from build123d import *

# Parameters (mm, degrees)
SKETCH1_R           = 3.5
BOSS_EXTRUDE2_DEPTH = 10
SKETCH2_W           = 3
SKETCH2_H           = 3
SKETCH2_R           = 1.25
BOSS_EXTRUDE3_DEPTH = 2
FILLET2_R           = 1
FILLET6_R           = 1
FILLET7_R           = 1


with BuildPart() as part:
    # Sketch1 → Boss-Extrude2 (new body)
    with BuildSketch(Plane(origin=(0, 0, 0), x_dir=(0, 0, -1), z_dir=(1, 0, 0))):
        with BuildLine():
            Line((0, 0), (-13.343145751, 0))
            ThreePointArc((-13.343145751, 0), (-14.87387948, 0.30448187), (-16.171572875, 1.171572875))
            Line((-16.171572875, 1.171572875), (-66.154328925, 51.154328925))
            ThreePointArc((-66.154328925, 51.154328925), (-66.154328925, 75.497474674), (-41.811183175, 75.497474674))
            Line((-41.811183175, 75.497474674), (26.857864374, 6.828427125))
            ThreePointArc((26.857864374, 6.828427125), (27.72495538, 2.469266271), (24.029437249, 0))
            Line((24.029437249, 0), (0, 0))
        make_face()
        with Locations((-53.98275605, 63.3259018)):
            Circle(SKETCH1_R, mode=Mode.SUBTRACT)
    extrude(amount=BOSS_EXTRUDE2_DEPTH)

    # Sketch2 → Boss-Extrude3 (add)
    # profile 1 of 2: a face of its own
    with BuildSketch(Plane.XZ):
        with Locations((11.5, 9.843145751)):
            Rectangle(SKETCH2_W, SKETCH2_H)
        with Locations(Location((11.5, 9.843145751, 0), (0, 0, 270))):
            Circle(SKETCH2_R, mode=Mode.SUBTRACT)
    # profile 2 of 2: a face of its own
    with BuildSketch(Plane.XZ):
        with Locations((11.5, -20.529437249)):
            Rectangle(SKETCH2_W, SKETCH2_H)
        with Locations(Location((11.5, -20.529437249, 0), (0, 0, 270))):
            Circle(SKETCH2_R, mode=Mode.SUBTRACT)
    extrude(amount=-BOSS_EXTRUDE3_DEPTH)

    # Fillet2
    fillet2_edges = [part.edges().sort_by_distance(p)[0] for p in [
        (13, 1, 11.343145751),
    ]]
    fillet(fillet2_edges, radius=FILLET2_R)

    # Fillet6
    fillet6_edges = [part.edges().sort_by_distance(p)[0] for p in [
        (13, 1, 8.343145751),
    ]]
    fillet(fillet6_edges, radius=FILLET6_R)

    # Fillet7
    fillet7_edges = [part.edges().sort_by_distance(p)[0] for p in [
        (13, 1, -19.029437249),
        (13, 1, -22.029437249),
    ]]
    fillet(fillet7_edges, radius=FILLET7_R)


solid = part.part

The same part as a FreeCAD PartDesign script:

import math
import FreeCAD as App
import Part
import Sketcher
Q = App.Units.Quantity


def edges_at(feature, points):
    """Names of the edges that pass closest to the given points."""
    edges = feature.Shape.Edges
    near = lambda p: min(range(len(edges)), key=lambda i: edges[i].distToShape(Part.Vertex(*p))[0])
    return sorted({f"Edge{near(p) + 1}" for p in points})

doc = App.newDocument("Part")
params = doc.addObject("Spreadsheet::Sheet", "Params")
for row, (alias, value) in enumerate([
    ("sketch1_diameter", "7 mm"),
    ("sketch1_radius", "4 mm"),
    ("pad1_length", "10 mm"),
    ("sketch2_diameter", "2.5 mm"),
    ("sketch2_width", "3 mm"),
    ("pad2_length", "2 mm"),
    ("fillet_radius", "1 mm"),
    ("fillet2_radius", "1 mm"),
    ("fillet3_radius", "1 mm"),
], start=1):
    params.set(f"A{row}", alias)
    params.set(f"B{row}", "=" + value)
    params.setAlias(f"B{row}", alias)

body = doc.addObject("PartDesign::Body", "Body")

# Sketch on YZ plane
sketch1 = body.newObject("Sketcher::SketchObject", "Sketch")
sketch1.AttachmentSupport = (doc.getObject("YZ_Plane"), [""])
sketch1.MapMode = "FlatFace"
sketch1.addGeometry(Part.ArcOfCircle(Part.Circle(App.Vector(4, 13.3, 0), App.Vector(0, 0, 1), 4), math.radians(135), math.radians(180)), False)
sketch1.addGeometry(Part.LineSegment(App.Vector(0, 13.3, 0), App.Vector(0, -24, 0)), False)
sketch1.addGeometry(Part.ArcOfCircle(Part.Circle(App.Vector(4, -24, 0), App.Vector(0, 0, 1), 4), math.radians(180), math.radians(315)), False)
sketch1.addGeometry(Part.LineSegment(App.Vector(6.8, -26.9, 0), App.Vector(75.5, 41.8, 0)), False)
sketch1.addGeometry(Part.ArcOfCircle(Part.Circle(App.Vector(63.3, 54, 0), App.Vector(0, 0, 1), 17.2), math.radians(-45), math.radians(135)), False)
sketch1.addGeometry(Part.LineSegment(App.Vector(51.2, 66.2, 0), App.Vector(1.2, 16.2, 0)), False)
sketch1.addGeometry(Part.Circle(App.Vector(63.3, 54, 0), App.Vector(0, 0, 1), 3.5), False)
sketch1.addConstraint(Sketcher.Constraint("Tangent", 0, 2, 1, 1))
sketch1.addConstraint(Sketcher.Constraint("Tangent", 1, 2, 2, 1))
sketch1.addConstraint(Sketcher.Constraint("Tangent", 2, 2, 3, 1))
sketch1.addConstraint(Sketcher.Constraint("Tangent", 3, 2, 4, 1))
sketch1.addConstraint(Sketcher.Constraint("Tangent", 4, 2, 5, 1))
sketch1.addConstraint(Sketcher.Constraint("Tangent", 5, 2, 0, 1))
sketch1.addConstraint(Sketcher.Constraint("Vertical", 1))
sketch1.addConstraint(Sketcher.Constraint("Coincident", 6, 3, 4, 3))
sketch1.addConstraint(Sketcher.Constraint("Equal", 0, 2))
sketch1.addConstraint(Sketcher.Constraint("PointOnObject", 0, 2, -2))
sketch1.addConstraint(Sketcher.Constraint("Parallel", 3, 5))
sketch1.addConstraint(Sketcher.Constraint("Diameter", 6, 7.0))
sketch1.addConstraint(Sketcher.Constraint("Radius", 0, 4.0))
sketch1.addConstraint(Sketcher.Constraint("Angle", 3, Q("45 deg")))
sketch1.addConstraint(Sketcher.Constraint("Radius", 4, 17.213203))
sketch1.addConstraint(Sketcher.Constraint("Distance", 3, 97.112698))
sketch1.addConstraint(Sketcher.Constraint("DistanceY", -1, 1, 4, 2, 66.154329))
sketch1.setExpression("Constraints[11]", "Params.sketch1_diameter")
sketch1.setExpression("Constraints[12]", "Params.sketch1_radius")
pad1 = body.newObject("PartDesign::Pad", "Pad")
pad1.Profile = sketch1
pad1.setExpression("Length", "Params.pad1_length")

# Sketch on XZ plane
sketch2 = body.newObject("Sketcher::SketchObject", "Sketch001")
sketch2.AttachmentSupport = (doc.getObject("XZ_Plane"), [""])
sketch2.MapMode = "FlatFace"
sketch2.addGeometry(Part.LineSegment(App.Vector(10, 11.3, 0), App.Vector(10, 8.3, 0)), False)
sketch2.addGeometry(Part.LineSegment(App.Vector(10, 8.3, 0), App.Vector(13, 8.3, 0)), False)
sketch2.addGeometry(Part.LineSegment(App.Vector(13, 8.3, 0), App.Vector(13, 11.3, 0)), False)
sketch2.addGeometry(Part.LineSegment(App.Vector(13, 11.3, 0), App.Vector(10, 11.3, 0)), False)
sketch2.addGeometry(Part.Circle(App.Vector(11.5, 9.8, 0), App.Vector(0, 0, 1), 1.2), False)
sketch2.addGeometry(Part.LineSegment(App.Vector(10, -19, 0), App.Vector(10, -22, 0)), False)
sketch2.addGeometry(Part.LineSegment(App.Vector(10, -22, 0), App.Vector(13, -22, 0)), False)
sketch2.addGeometry(Part.LineSegment(App.Vector(13, -22, 0), App.Vector(13, -19, 0)), False)
sketch2.addGeometry(Part.LineSegment(App.Vector(13, -19, 0), App.Vector(10, -19, 0)), False)
sketch2.addGeometry(Part.Circle(App.Vector(11.5, -20.5, 0), App.Vector(0, 0, 1), 1.2), False)
sketch2.addConstraint(Sketcher.Constraint("Coincident", 0, 2, 1, 1))
sketch2.addConstraint(Sketcher.Constraint("Coincident", 1, 2, 2, 1))
sketch2.addConstraint(Sketcher.Constraint("Coincident", 2, 2, 3, 1))
sketch2.addConstraint(Sketcher.Constraint("Coincident", 3, 2, 0, 1))
sketch2.addConstraint(Sketcher.Constraint("Coincident", 5, 2, 6, 1))
sketch2.addConstraint(Sketcher.Constraint("Coincident", 6, 2, 7, 1))
sketch2.addConstraint(Sketcher.Constraint("Coincident", 7, 2, 8, 1))
sketch2.addConstraint(Sketcher.Constraint("Coincident", 8, 2, 5, 1))
sketch2.addConstraint(Sketcher.Constraint("Vertical", 0))
sketch2.addConstraint(Sketcher.Constraint("Horizontal", 1))
sketch2.addConstraint(Sketcher.Constraint("Vertical", 2))
sketch2.addConstraint(Sketcher.Constraint("Horizontal", 3))
sketch2.addConstraint(Sketcher.Constraint("Vertical", 5))
sketch2.addConstraint(Sketcher.Constraint("Horizontal", 6))
sketch2.addConstraint(Sketcher.Constraint("Vertical", 7))
sketch2.addConstraint(Sketcher.Constraint("Horizontal", 8))
sketch2.addConstraint(Sketcher.Constraint("Equal", 4, 9))
sketch2.addConstraint(Sketcher.Constraint("Vertical", 4, 3, 9, 3))
sketch2.addConstraint(Sketcher.Constraint("Vertical", 3, 2, 5, 2))
sketch2.addConstraint(Sketcher.Constraint("Vertical", 2, 2, 6, 2))
sketch2.addConstraint(Sketcher.Constraint("Equal", 8, 0))
sketch2.addConstraint(Sketcher.Constraint("Equal", 2, 5))
sketch2.addConstraint(Sketcher.Constraint("Diameter", 4, 2.5))
sketch2.addConstraint(Sketcher.Constraint("DistanceX", 1, 1, 1, 2, 3.0))
sketch2.addConstraint(Sketcher.Constraint("DistanceX", -1, 1, 0, 2, 10.0))
sketch2.addConstraint(Sketcher.Constraint("DistanceX", -1, 1, 4, 3, 11.5))
sketch2.addConstraint(Sketcher.Constraint("DistanceY", 0, 2, 4, 3, 1.5))
sketch2.addConstraint(Sketcher.Constraint("DistanceY", 5, 2, 9, 3, 1.5))
sketch2.addConstraint(Sketcher.Constraint("DistanceY", -1, 1, 4, 3, 9.843146))
sketch2.addConstraint(Sketcher.Constraint("DistanceY", 9, 3, -1, 1, 20.529437))
sketch2.setExpression("Constraints[22]", "Params.sketch2_diameter")
sketch2.setExpression("Constraints[23]", "Params.sketch2_width")
pad2 = body.newObject("PartDesign::Pad", "Pad001")
pad2.Profile = sketch2
pad2.setExpression("Length", "Params.pad2_length")
pad2.Reversed = True
doc.recompute()

fillet = body.newObject("PartDesign::Fillet", "Fillet")
fillet.Base = (pad2, edges_at(pad2, [(13, 1, 11.343)]))
fillet.setExpression("Radius", "Params.fillet_radius")
doc.recompute()

fillet2 = body.newObject("PartDesign::Fillet", "Fillet001")
fillet2.Base = (fillet, edges_at(fillet, [(13, 1, 8.343)]))
fillet2.setExpression("Radius", "Params.fillet2_radius")
doc.recompute()

fillet3 = body.newObject("PartDesign::Fillet", "Fillet002")
fillet3.Base = (fillet2, edges_at(fillet2, [(13, 1, -19.029), (13, 1, -22.029)]))
fillet3.setExpression("Radius", "Params.fillet3_radius")

doc.recompute()
